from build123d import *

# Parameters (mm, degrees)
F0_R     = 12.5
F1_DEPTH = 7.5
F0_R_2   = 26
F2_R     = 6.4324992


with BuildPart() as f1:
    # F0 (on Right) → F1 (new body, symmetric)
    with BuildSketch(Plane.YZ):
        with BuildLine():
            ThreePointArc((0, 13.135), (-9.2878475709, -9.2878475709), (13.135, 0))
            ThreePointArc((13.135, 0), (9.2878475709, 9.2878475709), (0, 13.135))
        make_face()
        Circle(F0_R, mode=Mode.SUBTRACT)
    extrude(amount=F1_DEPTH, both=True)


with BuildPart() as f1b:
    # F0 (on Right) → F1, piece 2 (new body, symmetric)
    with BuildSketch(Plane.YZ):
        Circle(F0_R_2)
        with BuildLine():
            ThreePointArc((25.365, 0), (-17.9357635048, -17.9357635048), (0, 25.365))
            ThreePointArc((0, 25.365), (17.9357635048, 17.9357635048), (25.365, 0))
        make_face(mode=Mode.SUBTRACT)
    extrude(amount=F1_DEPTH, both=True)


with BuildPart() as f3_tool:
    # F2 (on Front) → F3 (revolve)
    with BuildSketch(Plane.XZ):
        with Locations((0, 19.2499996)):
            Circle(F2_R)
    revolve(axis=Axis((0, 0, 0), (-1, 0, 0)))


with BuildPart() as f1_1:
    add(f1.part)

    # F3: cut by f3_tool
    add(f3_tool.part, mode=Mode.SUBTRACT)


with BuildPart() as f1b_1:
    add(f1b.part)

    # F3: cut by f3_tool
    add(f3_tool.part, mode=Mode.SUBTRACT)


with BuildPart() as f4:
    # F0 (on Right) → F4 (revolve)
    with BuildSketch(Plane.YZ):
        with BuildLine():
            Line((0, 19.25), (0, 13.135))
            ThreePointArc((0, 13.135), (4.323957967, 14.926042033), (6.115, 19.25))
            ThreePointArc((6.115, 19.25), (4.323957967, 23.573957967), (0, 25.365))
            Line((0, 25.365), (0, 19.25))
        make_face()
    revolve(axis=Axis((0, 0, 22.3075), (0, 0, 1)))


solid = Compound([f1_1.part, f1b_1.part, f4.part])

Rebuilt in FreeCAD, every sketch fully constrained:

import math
import FreeCAD as App
import Part
import Sketcher
from FreeCAD import Vector
Q = App.Units.Quantity

doc = App.newDocument("Part")
body = doc.addObject("PartDesign::Body", "Body")

# Sketch on YZ plane
sketch1 = body.newObject("Sketcher::SketchObject", "Sketch")
sketch1.AttachmentSupport = (doc.getObject("YZ_Plane"), [""])
sketch1.MapMode = "FlatFace"
sketch1.addGeometry([
    Part.ArcOfCircle(Part.Circle(Vector(0, 0, 0), Vector(0, 0, 1), 13), math.radians(90), math.radians(360)),
    Part.ArcOfCircle(Part.Circle(Vector(0, 0, 0), Vector(0, 0, 1), 13), math.radians(0), math.radians(90)),
    Part.Circle(Vector(0, 0, 0), Vector(0, 0, 1), 12),
], False)
sketch1.addConstraint([
    Sketcher.Constraint("Tangent", 0, 1, 1, 2),
    Sketcher.Constraint("Coincident", 1, 1, 0, 2),
    Sketcher.Constraint("Coincident", 0, 3, -1, 1),
    Sketcher.Constraint("Coincident", 2, 3, -1, 1),
    Sketcher.Constraint("PointOnObject", 0, 1, -2),
    Sketcher.Constraint("PointOnObject", 1, 1, -1),
    Sketcher.Constraint("Diameter", 2, Q("25 mm")),
    Sketcher.Constraint("Radius", 0, Q("13.135 mm")),
])
pad1 = body.newObject("PartDesign::Pad", "Pad")
pad1.Profile = sketch1
pad1.Length = 15
pad1.Midplane = True
body2 = doc.addObject("PartDesign::Body", "Body001")

# Sketch on YZ plane
sketch2 = body2.newObject("Sketcher::SketchObject", "Sketch001")
sketch2.AttachmentSupport = (doc.getObject("YZ_Plane001"), [""])
sketch2.MapMode = "FlatFace"
sketch2.addGeometry([
    Part.Circle(Vector(0, 0, 0), Vector(0, 0, 1), 26),
    Part.Circle(Vector(0, 0, 0), Vector(0, 0, 1), 25),
], False)
sketch2.addConstraint([
    Sketcher.Constraint("Coincident", 0, 3, -1, 1),
    Sketcher.Constraint("Coincident", 1, 3, -1, 1),
    Sketcher.Constraint("Diameter", 0, Q("52 mm")),
    Sketcher.Constraint("Diameter", 1, Q("50.73 mm")),
])
pad2 = body2.newObject("PartDesign::Pad", "Pad001")
pad2.Profile = sketch2
pad2.Length = 15
pad2.Midplane = True
body3 = doc.addObject("PartDesign::Body", "Body002")

# Sketch on XZ plane
sketch3 = body3.newObject("Sketcher::SketchObject", "Sketch002")
sketch3.AttachmentSupport = (doc.getObject("XZ_Plane002"), [""])
sketch3.MapMode = "FlatFace"
sketch3.addGeometry(Part.Circle(Vector(0, 19, 0), Vector(0, 0, 1), 6), False)
sketch3.addConstraint([
    Sketcher.Constraint("PointOnObject", 0, 3, -2),
    Sketcher.Constraint("Diameter", 0, Q("12.864998 mm")),
    Sketcher.Constraint("DistanceY", -1, 1, 0, 3, Q("19.25 mm")),
])
revolution = body3.newObject("PartDesign::Revolution", "Revolution")
revolution.Profile = sketch3
revolution.ReferenceAxis = (sketch3, ["H_Axis"])
revolution.Angle = 360
doc.recompute()

body4 = doc.addObject("PartDesign::Body", "Body003")
body4.BaseFeature = body3
boolean = body.newObject("PartDesign::Boolean", "Boolean")
boolean.Type = "Cut"
boolean.addObjects([body4])
doc.recompute()

boolean2 = body2.newObject("PartDesign::Boolean", "Boolean001")
boolean2.Type = "Cut"
boolean2.addObjects([body3])
body5 = doc.addObject("PartDesign::Body", "Body004")

# Sketch on YZ plane
sketch4 = body5.newObject("Sketcher::SketchObject", "Sketch003")
sketch4.AttachmentSupport = (doc.getObject("YZ_Plane004"), [""])
sketch4.MapMode = "FlatFace"
sketch4.addGeometry([
    Part.ArcOfCircle(Part.Circle(Vector(0, 19, 0), Vector(0, 0, 1), 6), math.radians(-90), math.radians(0)),
    Part.ArcOfCircle(Part.Circle(Vector(0, 19, 0), Vector(0, 0, 1), 6), math.radians(0), math.radians(90)),
    Part.LineSegment(Vector(0, 25, 0), Vector(0, 13, 0)),
], False)
sketch4.addConstraint([
    Sketcher.Constraint("Tangent", 0, 2, 1, 1),
    Sketcher.Constraint("Coincident", 1, 2, 2, 1),
    Sketcher.Constraint("Coincident", 2, 2, 0, 1),
    Sketcher.Constraint("Vertical", 2),
    Sketcher.Constraint("Equal", 0, 1),
    Sketcher.Constraint("PointOnObject", 0, 3, -2),
    Sketcher.Constraint("PointOnObject", 1, 2, -2),
    Sketcher.Constraint("Horizontal", 1, 3, 0, 2),
    Sketcher.Constraint("Radius", 0, Q("6.115 mm")),
    Sketcher.Constraint("DistanceY", -1, 1, 0, 3, Q("19.25 mm")),
])
revolution2 = body5.newObject("PartDesign::Revolution", "Revolution001")
revolution2.Profile = sketch4
revolution2.ReferenceAxis = (sketch4, ["V_Axis"])
revolution2.Angle = 360

doc.recompute()
